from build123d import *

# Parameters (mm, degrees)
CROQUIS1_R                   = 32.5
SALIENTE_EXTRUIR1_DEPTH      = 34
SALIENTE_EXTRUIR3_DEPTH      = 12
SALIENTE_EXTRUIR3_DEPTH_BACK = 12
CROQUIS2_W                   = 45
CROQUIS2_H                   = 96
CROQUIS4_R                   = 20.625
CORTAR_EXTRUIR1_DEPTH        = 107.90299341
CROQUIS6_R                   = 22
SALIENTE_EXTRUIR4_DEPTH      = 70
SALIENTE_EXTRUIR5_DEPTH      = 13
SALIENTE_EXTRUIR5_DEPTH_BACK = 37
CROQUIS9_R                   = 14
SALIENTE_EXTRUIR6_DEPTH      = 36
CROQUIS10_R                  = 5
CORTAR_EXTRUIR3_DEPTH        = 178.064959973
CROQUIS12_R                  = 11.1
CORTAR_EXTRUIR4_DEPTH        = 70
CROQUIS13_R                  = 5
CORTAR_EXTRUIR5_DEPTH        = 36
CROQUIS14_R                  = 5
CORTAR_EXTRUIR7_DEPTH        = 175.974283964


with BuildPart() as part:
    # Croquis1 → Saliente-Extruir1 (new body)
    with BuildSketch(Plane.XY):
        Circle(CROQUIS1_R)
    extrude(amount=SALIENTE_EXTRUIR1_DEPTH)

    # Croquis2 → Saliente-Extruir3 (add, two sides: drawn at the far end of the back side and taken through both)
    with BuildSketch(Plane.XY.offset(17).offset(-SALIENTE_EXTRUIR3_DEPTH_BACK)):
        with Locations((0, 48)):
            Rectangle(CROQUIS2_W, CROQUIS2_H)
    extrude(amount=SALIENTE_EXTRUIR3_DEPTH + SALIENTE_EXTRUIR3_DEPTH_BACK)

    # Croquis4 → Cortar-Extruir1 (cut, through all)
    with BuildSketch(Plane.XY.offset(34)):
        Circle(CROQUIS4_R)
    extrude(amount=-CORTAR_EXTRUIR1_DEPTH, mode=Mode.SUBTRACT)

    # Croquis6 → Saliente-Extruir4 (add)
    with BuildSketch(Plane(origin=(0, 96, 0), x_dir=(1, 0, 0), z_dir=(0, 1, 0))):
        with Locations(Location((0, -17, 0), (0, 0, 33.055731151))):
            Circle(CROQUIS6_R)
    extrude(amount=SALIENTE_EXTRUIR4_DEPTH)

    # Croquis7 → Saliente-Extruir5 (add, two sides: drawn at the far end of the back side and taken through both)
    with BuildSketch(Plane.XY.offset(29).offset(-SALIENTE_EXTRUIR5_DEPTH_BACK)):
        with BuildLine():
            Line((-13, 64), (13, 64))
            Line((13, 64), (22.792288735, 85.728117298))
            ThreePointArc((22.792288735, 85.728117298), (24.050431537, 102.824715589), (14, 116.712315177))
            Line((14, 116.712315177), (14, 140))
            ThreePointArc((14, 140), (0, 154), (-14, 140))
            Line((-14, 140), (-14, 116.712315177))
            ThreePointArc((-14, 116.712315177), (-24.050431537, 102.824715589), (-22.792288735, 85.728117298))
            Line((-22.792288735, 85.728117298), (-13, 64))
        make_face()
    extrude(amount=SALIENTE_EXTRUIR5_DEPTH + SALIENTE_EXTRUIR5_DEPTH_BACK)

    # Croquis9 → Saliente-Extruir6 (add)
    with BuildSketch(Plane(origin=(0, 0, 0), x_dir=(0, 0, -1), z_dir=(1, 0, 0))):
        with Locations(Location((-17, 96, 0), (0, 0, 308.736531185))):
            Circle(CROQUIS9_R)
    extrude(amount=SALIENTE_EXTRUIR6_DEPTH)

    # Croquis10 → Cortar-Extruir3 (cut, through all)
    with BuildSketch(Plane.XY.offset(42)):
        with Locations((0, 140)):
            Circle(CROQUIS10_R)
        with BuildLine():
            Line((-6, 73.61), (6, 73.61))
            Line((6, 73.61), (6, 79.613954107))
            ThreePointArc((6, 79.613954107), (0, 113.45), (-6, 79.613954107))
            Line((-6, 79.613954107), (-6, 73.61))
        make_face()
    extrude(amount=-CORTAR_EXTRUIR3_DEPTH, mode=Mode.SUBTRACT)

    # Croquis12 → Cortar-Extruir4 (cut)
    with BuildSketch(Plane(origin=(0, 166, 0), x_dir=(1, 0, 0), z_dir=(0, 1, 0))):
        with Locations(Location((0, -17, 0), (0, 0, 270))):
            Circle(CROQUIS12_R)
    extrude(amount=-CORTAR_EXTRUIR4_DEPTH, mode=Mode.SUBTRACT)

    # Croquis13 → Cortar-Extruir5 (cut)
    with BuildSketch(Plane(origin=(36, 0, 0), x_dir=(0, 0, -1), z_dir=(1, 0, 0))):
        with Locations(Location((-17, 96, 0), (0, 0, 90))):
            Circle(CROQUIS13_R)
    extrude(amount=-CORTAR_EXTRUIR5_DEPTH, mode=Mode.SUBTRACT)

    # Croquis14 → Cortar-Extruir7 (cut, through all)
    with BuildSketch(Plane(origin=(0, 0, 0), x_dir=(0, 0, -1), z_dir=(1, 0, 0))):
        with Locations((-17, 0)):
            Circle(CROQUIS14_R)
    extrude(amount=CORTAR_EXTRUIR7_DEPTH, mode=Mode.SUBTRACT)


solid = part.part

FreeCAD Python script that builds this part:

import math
import FreeCAD as App
import Part
import Sketcher

V = App.Vector
Q = App.Units.Quantity

doc = App.newDocument("Part")
body = doc.addObject("PartDesign::Body", "Body")

# Sketch on XY plane
sketch1 = doc.addObject("Sketcher::SketchObject", "Sketch")
body.addObject(sketch1)
sketch1.AttachmentSupport = (doc.XY_Plane, [""])
sketch1.MapMode = "FlatFace"
sketch1.addGeometry(Part.Circle(V(0, 0, 0), V(0, 0, 1), 32), False)
sketch1.addConstraint([
    Sketcher.Constraint("Coincident", 0, 3, -1, 1),
    Sketcher.Constraint("Diameter", 0, Q("65 mm")),
])
pad1 = doc.addObject("PartDesign::Pad", "Pad")
body.addObject(pad1)
pad1.Profile = sketch1
pad1.Length = 34

# Sketch on XY plane
sketch2 = doc.addObject("Sketcher::SketchObject", "Sketch001")
body.addObject(sketch2)
sketch2.AttachmentSupport = (doc.XY_Plane, [""])
sketch2.MapMode = "FlatFace"
sketch2.AttachmentOffset = App.Placement(V(0, 0, 17), App.Rotation())
sketch2.addGeometry([
    Part.LineSegment(V(-22, 96, 0), V(-22, 0, 0)),
    Part.LineSegment(V(-22, 0, 0), V(22, 0, 0)),
    Part.LineSegment(V(22, 0, 0), V(22, 96, 0)),
    Part.LineSegment(V(22, 96, 0), V(-22, 96, 0)),
], False)
sketch2.addConstraint([
    Sketcher.Constraint("Coincident", 0, 2, 1, 1),
    Sketcher.Constraint("Coincident", 1, 2, 2, 1),
    Sketcher.Constraint("Coincident", 2, 2, 3, 1),
    Sketcher.Constraint("Coincident", 3, 2, 0, 1),
    Sketcher.Constraint("Vertical", 0),
    Sketcher.Constraint("Horizontal", 1),
    Sketcher.Constraint("Vertical", 2),
    Sketcher.Constraint("Horizontal", 3),
    Sketcher.Constraint("Symmetric", 0, 2, 1, 2, -1, 1),
    Sketcher.Constraint("DistanceX", 1, 1, 1, 2, Q("45 mm")),
    Sketcher.Constraint("DistanceY", 0, 2, 0, 1, Q("96 mm")),
])
pad2 = doc.addObject("PartDesign::Pad", "Pad001")
body.addObject(pad2)
pad2.Profile = sketch2
pad2.Type = "TwoLengths"
pad2.Length = 12
pad2.Length2 = 12

# Sketch on XY plane
sketch3 = doc.addObject("Sketcher::SketchObject", "Sketch002")
body.addObject(sketch3)
sketch3.AttachmentSupport = (doc.XY_Plane, [""])
sketch3.MapMode = "FlatFace"
sketch3.AttachmentOffset = App.Placement(V(0, 0, 34), App.Rotation())
sketch3.addGeometry(Part.Circle(V(0, 0, 0), V(0, 0, 1), 21), False)
sketch3.addConstraint([
    Sketcher.Constraint("Coincident", 0, 3, -1, 1),
    Sketcher.Constraint("Diameter", 0, Q("41.25 mm")),
])
pocket1 = doc.addObject("PartDesign::Pocket", "Pocket")
body.addObject(pocket1)
pocket1.Profile = sketch3
pocket1.Type = "ThroughAll"

# Sketch on XZ plane
sketch4 = doc.addObject("Sketcher::SketchObject", "Sketch003")
body.addObject(sketch4)
sketch4.AttachmentSupport = (doc.XZ_Plane, [""])
sketch4.MapMode = "FlatFace"
sketch4.AttachmentOffset = App.Placement(V(0, 0, -96), App.Rotation())
sketch4.addGeometry(Part.Circle(V(0, 17, 0), V(0, 0, 1), 22), False)
sketch4.addConstraint([
    Sketcher.Constraint("PointOnObject", 0, 3, -2),
    Sketcher.Constraint("Diameter", 0, Q("44 mm")),
    Sketcher.Constraint("DistanceY", -1, 1, 0, 3, Q("17 mm")),
])
pad3 = doc.addObject("PartDesign::Pad", "Pad002")
body.addObject(pad3)
pad3.Profile = sketch4
pad3.Length = 70
pad3.Reversed = True

# Sketch on XY plane
sketch5 = doc.addObject("Sketcher::SketchObject", "Sketch004")
body.addObject(sketch5)
sketch5.AttachmentSupport = (doc.XY_Plane, [""])
sketch5.MapMode = "FlatFace"
sketch5.AttachmentOffset = App.Placement(V(0, 0, 29), App.Rotation())
sketch5.addGeometry([
    Part.LineSegment(V(-13, 64, 0), V(13, 64, 0)),  # 0
    Part.LineSegment(V(13, 64, 0), V(23, 86, 0)),  # 1
    Part.ArcOfCircle(Part.Circle(V(0, 96, 0), V(0, 0, 1), 25), math.radians(-24), math.radians(56)),  # 2
    Part.LineSegment(V(14, 117, 0), V(14, 140, 0)),  # 3
    Part.ArcOfCircle(Part.Circle(V(0, 140, 0), V(0, 0, 1), 14), math.radians(0), math.radians(180)),  # 4
    Part.LineSegment(V(-14, 140, 0), V(-14, 117, 0)),  # 5
    Part.ArcOfCircle(Part.Circle(V(0, 96, 0), V(0, 0, 1), 25), math.radians(124), math.radians(204)),  # 6
    Part.LineSegment(V(-23, 86, 0), V(-13, 64, 0)),  # 7
], False)
sketch5.addConstraint([
    Sketcher.Constraint("Coincident", 0, 2, 1, 1),
    Sketcher.Constraint("Tangent", 1, 2, 2, 1),
    Sketcher.Constraint("Coincident", 2, 2, 3, 1),
    Sketcher.Constraint("Tangent", 3, 2, 4, 1),
    Sketcher.Constraint("Tangent", 4, 2, 5, 1),
    Sketcher.Constraint("Coincident", 5, 2, 6, 1),
    Sketcher.Constraint("Tangent", 6, 2, 7, 1),
    Sketcher.Constraint("Coincident", 7, 2, 0, 1),
    Sketcher.Constraint("Horizontal", 0),
    Sketcher.Constraint("Vertical", 3),
    Sketcher.Constraint("Vertical", 5),
    Sketcher.Constraint("Coincident", 6, 3, 2, 3),
    Sketcher.Constraint("Equal", 2, 6),
    Sketcher.Constraint("Symmetric", 2, 2, 5, 2, -2),
    Sketcher.Constraint("Horizontal", 1, 2, 6, 2),
    Sketcher.Constraint("Radius", 2, Q("25 mm")),
    Sketcher.Constraint("Radius", 4, Q("14 mm")),
    Sketcher.Constraint("DistanceX", 0, 1, 0, 2, Q("26 mm")),
    Sketcher.Constraint("DistanceY", -1, 1, 2, 3, Q("96 mm")),
    Sketcher.Constraint("DistanceY", -1, 1, 4, 3, Q("140 mm")),
    Sketcher.Constraint("DistanceY", -1, 1, 0, 2, Q("64 mm")),
])
pad4 = doc.addObject("PartDesign::Pad", "Pad003")
body.addObject(pad4)
pad4.Profile = sketch5
pad4.Type = "TwoLengths"
pad4.Length = 13
pad4.Length2 = 37

# Sketch on YZ plane
sketch6 = doc.addObject("Sketcher::SketchObject", "Sketch005")
body.addObject(sketch6)
sketch6.AttachmentSupport = (doc.YZ_Plane, [""])
sketch6.MapMode = "FlatFace"
sketch6.addGeometry(Part.Circle(V(96, 17, 0), V(0, 0, 1), 14), False)
sketch6.addConstraint([
    Sketcher.Constraint("Diameter", 0, Q("28 mm")),
    Sketcher.Constraint("DistanceX", -1, 1, 0, 3, Q("96 mm")),
    Sketcher.Constraint("DistanceY", -1, 1, 0, 3, Q("17 mm")),
])
pad5 = doc.addObject("PartDesign::Pad", "Pad004")
body.addObject(pad5)
pad5.Profile = sketch6
pad5.Length = 36

# Sketch on XY plane
sketch7 = doc.addObject("Sketcher::SketchObject", "Sketch006")
body.addObject(sketch7)
sketch7.AttachmentSupport = (doc.XY_Plane, [""])
sketch7.MapMode = "FlatFace"
sketch7.AttachmentOffset = App.Placement(V(0, 0, 42), App.Rotation())
sketch7.addGeometry([
    Part.Circle(V(0, 140, 0), V(0, 0, 1), 5),  # 0
    Part.LineSegment(V(-6, 74, 0), V(6, 74, 0)),  # 1
    Part.LineSegment(V(6, 74, 0), V(6, 80, 0)),  # 2
    Part.ArcOfCircle(Part.Circle(V(0, 96, 0), V(0, 0, 1), 17), math.radians(-70), math.radians(250)),  # 3
    Part.LineSegment(V(-6, 80, 0), V(-6, 74, 0)),  # 4
], False)
sketch7.addConstraint([
    Sketcher.Constraint("Coincident", 1, 2, 2, 1),
    Sketcher.Constraint("Coincident", 2, 2, 3, 1),
    Sketcher.Constraint("Coincident", 3, 2, 4, 1),
    Sketcher.Constraint("Coincident", 4, 2, 1, 1),
    Sketcher.Constraint("Horizontal", 1),
    Sketcher.Constraint("Vertical", 2),
    Sketcher.Constraint("Vertical", 4),
    Sketcher.Constraint("Symmetric", 2, 2, 3, 2, -2),
    Sketcher.Constraint("PointOnObject", 0, 3, -2),
    Sketcher.Constraint("Diameter", 0, Q("10 mm")),
    Sketcher.Constraint("DistanceX", 1, 1, 1, 2, Q("12 mm")),
    Sketcher.Constraint("Radius", 3, Q("17.45 mm")),
    Sketcher.Constraint("DistanceY", -1, 1, 0, 3, Q("140 mm")),
    Sketcher.Constraint("DistanceY", -1, 1, 3, 3, Q("96 mm")),
    Sketcher.Constraint("DistanceY", -1, 1, 1, 2, Q("73.61 mm")),
])
pocket2 = doc.addObject("PartDesign::Pocket", "Pocket001")
body.addObject(pocket2)
pocket2.Profile = sketch7
pocket2.Type = "ThroughAll"

# Sketch on XZ plane
sketch8 = doc.addObject("Sketcher::SketchObject", "Sketch007")
body.addObject(sketch8)
sketch8.AttachmentSupport = (doc.XZ_Plane, [""])
sketch8.MapMode = "FlatFace"
sketch8.AttachmentOffset = App.Placement(V(0, 0, -166), App.Rotation())
sketch8.addGeometry(Part.Circle(V(0, 17, 0), V(0, 0, 1), 11), False)
sketch8.addConstraint([
    Sketcher.Constraint("PointOnObject", 0, 3, -2),
    Sketcher.Constraint("Diameter", 0, Q("22.2 mm")),
    Sketcher.Constraint("DistanceY", -1, 1, 0, 3, Q("17 mm")),
])
pocket3 = doc.addObject("PartDesign::Pocket", "Pocket002")
body.addObject(pocket3)
pocket3.Profile = sketch8
pocket3.Length = 70
pocket3.Reversed = True

# Sketch on YZ plane
sketch9 = doc.addObject("Sketcher::SketchObject", "Sketch008")
body.addObject(sketch9)
sketch9.AttachmentSupport = (doc.YZ_Plane, [""])
sketch9.MapMode = "FlatFace"
sketch9.AttachmentOffset = App.Placement(V(0, 0, 36), App.Rotation())
sketch9.addGeometry(Part.Circle(V(96, 17, 0), V(0, 0, 1), 5), False)
sketch9.addConstraint([
    Sketcher.Constraint("Diameter", 0, Q("10 mm")),
    Sketcher.Constraint("DistanceX", -1, 1, 0, 3, Q("96 mm")),
    Sketcher.Constraint("DistanceY", -1, 1, 0, 3, Q("17 mm")),
])
pocket4 = doc.addObject("PartDesign::Pocket", "Pocket003")
body.addObject(pocket4)
pocket4.Profile = sketch9
pocket4.Length = 36

# Sketch on YZ plane
sketch10 = doc.addObject("Sketcher::SketchObject", "Sketch009")
body.addObject(sketch10)
sketch10.AttachmentSupport = (doc.YZ_Plane, [""])
sketch10.MapMode = "FlatFace"
sketch10.addGeometry(Part.Circle(V(0, 17, 0), V(0, 0, 1), 5), False)
sketch10.addConstraint([
    Sketcher.Constraint("PointOnObject", 0, 3, -2),
    Sketcher.Constraint("Diameter", 0, Q("10 mm")),
    Sketcher.Constraint("DistanceY", -1, 1, 0, 3, Q("17 mm")),
])
pocket5 = doc.addObject("PartDesign::Pocket", "Pocket004")
body.addObject(pocket5)
pocket5.Profile = sketch10
pocket5.Type = "ThroughAll"
pocket5.Reversed = True

doc.recompute()
